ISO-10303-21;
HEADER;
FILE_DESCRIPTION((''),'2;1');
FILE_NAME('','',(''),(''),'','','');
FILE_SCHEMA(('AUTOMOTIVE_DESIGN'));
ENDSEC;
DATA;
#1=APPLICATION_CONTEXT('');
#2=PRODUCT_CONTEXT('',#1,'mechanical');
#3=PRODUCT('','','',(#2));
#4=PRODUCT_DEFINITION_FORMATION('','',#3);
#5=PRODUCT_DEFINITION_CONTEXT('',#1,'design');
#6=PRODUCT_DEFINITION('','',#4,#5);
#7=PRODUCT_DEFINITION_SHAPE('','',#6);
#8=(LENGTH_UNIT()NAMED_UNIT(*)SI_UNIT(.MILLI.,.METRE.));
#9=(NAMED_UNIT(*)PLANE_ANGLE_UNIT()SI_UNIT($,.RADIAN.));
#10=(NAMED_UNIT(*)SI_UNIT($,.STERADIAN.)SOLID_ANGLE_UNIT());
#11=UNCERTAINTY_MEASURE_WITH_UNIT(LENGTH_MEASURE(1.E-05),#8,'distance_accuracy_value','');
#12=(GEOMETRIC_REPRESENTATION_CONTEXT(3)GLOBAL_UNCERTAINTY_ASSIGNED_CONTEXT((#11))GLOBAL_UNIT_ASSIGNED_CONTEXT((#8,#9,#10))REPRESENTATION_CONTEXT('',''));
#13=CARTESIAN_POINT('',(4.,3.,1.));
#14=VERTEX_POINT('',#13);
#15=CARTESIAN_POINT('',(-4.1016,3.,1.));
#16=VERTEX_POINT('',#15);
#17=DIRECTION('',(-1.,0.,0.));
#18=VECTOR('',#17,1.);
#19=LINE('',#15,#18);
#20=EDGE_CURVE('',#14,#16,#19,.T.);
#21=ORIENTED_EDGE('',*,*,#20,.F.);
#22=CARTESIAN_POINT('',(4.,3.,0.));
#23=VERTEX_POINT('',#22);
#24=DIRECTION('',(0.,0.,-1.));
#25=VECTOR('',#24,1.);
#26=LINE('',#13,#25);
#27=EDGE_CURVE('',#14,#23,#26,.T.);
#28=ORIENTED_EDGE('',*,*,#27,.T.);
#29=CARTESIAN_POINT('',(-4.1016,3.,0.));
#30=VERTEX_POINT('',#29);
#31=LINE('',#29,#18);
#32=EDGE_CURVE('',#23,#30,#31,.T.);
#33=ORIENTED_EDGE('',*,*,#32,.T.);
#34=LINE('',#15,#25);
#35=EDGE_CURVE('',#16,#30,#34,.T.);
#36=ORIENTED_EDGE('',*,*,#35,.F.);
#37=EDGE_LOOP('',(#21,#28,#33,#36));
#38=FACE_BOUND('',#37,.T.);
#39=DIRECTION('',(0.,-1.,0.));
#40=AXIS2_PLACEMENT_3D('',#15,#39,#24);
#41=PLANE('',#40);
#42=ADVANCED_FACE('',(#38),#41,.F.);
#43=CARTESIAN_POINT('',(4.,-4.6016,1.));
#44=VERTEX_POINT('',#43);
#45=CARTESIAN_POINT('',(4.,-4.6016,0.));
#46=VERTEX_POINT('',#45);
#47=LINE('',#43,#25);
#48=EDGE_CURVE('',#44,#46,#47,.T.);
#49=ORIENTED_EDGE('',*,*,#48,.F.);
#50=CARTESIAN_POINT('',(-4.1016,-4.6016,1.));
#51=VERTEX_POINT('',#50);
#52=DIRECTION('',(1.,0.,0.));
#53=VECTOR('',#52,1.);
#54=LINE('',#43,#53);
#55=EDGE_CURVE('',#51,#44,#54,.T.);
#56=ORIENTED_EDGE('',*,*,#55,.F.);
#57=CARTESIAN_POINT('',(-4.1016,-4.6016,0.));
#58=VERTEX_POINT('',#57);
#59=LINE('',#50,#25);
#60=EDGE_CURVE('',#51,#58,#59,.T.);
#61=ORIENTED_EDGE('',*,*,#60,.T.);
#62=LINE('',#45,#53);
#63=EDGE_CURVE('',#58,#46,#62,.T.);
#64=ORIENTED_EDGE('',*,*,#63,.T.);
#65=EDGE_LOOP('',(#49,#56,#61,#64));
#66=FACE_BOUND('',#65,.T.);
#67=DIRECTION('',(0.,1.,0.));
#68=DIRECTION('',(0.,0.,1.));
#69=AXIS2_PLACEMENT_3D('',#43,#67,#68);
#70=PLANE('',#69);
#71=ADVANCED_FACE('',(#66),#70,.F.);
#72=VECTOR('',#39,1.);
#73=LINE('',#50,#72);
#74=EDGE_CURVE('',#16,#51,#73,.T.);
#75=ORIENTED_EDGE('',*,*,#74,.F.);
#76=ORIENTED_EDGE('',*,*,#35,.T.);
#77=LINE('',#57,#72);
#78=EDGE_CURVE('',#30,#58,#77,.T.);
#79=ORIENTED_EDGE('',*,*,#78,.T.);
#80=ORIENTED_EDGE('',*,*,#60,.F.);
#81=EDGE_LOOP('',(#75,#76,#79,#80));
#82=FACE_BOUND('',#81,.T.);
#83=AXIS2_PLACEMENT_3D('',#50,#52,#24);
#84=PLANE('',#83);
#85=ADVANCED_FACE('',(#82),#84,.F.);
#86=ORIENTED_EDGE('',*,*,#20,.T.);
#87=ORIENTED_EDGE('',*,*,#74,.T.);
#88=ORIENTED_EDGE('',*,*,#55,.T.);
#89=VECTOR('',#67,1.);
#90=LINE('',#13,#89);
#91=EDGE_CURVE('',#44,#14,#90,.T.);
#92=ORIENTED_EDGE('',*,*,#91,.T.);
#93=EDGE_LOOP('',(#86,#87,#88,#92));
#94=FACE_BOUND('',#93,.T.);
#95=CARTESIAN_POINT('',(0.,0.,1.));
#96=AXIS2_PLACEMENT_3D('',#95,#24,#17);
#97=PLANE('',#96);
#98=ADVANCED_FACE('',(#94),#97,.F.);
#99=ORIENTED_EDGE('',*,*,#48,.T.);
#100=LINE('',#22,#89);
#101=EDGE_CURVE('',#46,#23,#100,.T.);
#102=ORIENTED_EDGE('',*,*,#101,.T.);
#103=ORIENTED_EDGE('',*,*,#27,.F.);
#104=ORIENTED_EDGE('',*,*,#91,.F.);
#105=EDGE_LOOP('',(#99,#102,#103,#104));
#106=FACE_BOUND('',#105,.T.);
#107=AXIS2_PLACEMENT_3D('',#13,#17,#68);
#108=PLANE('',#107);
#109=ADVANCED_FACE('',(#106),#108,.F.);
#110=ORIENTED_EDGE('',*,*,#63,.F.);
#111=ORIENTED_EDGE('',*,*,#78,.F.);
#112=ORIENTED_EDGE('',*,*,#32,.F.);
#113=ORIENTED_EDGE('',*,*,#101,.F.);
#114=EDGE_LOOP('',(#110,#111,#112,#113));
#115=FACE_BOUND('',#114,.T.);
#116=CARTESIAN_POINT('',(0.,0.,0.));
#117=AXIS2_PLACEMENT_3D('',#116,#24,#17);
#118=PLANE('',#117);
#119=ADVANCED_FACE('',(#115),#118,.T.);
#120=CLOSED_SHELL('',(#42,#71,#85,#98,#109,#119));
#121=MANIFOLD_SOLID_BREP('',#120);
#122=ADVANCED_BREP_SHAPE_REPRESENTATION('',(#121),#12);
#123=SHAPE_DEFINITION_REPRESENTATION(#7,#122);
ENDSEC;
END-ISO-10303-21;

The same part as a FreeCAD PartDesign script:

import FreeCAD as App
import Part
import Sketcher
from FreeCAD import Vector
Q = App.Units.Quantity

doc = App.newDocument("Part")
body = doc.addObject("PartDesign::Body", "Body")

sketch1 = doc.addObject("Sketcher::SketchObject", "Sketch")
body.addObject(sketch1)
sketch1.AttachmentSupport = (doc.XY_Plane, [""])
sketch1.MapMode = "FlatFace"
sketch1.addGeometry(Part.LineSegment(Vector(-4, 3, 0), Vector(-4, -5, 0)), False)
sketch1.addGeometry(Part.LineSegment(Vector(-4, -5, 0), Vector(4, -5, 0)), False)
sketch1.addGeometry(Part.LineSegment(Vector(4, -5, 0), Vector(4, 3, 0)), False)
sketch1.addGeometry(Part.LineSegment(Vector(4, 3, 0), Vector(-4, 3, 0)), False)
sketch1.addConstraint(Sketcher.Constraint("Coincident", 0, 2, 1, 1))
sketch1.addConstraint(Sketcher.Constraint("Coincident", 1, 2, 2, 1))
sketch1.addConstraint(Sketcher.Constraint("Coincident", 2, 2, 3, 1))
sketch1.addConstraint(Sketcher.Constraint("Coincident", 3, 2, 0, 1))
sketch1.addConstraint(Sketcher.Constraint("Vertical", 0))
sketch1.addConstraint(Sketcher.Constraint("Horizontal", 1))
sketch1.addConstraint(Sketcher.Constraint("Vertical", 2))
sketch1.addConstraint(Sketcher.Constraint("Horizontal", 3))
sketch1.addConstraint(Sketcher.Constraint("DistanceX", -1, 1, 1, 2, Q("4 mm")))
sketch1.addConstraint(Sketcher.Constraint("DistanceY", -1, 1, 2, 2, Q("3 mm")))
sketch1.addConstraint(Sketcher.Constraint("DistanceX", 1, 1, 1, 2, Q("8.1016 mm")))
sketch1.addConstraint(Sketcher.Constraint("DistanceY", 0, 2, 0, 1, Q("7.6016 mm")))
pad1 = doc.addObject("PartDesign::Pad", "Pad")
body.addObject(pad1)
pad1.Profile = sketch1
pad1.Length = 1

doc.recompute()
